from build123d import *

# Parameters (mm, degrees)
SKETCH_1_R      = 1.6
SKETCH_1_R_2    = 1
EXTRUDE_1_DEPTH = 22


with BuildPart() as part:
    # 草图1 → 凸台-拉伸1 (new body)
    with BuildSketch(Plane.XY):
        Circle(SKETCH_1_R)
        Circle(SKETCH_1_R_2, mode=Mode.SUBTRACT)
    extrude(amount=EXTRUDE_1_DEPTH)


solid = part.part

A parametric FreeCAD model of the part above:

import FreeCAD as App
import Part
import Sketcher

V = App.Vector
Q = App.Units.Quantity

doc = App.newDocument("Part")
body = doc.addObject("PartDesign::Body", "Body")

# Sketch on XY plane
sketch1 = doc.addObject("Sketcher::SketchObject", "Sketch")
body.addObject(sketch1)
sketch1.AttachmentSupport = (doc.XY_Plane, [""])
sketch1.MapMode = "FlatFace"
sketch1.addGeometry([
    Part.Circle(V(0, 0, 0), V(0, 0, 1), 1.6),
    Part.Circle(V(0, 0, 0), V(0, 0, 1), 1),
], False)
sketch1.addConstraint([
    Sketcher.Constraint("Coincident", 0, 3, -1, 1),
    Sketcher.Constraint("Coincident", 1, 3, -1, 1),
    Sketcher.Constraint("Diameter", 1, Q("2 mm")),
    Sketcher.Constraint("Diameter", 0, Q("3.2 mm")),
])
pad1 = doc.addObject("PartDesign::Pad", "Pad")
body.addObject(pad1)
pad1.Profile = sketch1
pad1.Length = 22

doc.recompute()
